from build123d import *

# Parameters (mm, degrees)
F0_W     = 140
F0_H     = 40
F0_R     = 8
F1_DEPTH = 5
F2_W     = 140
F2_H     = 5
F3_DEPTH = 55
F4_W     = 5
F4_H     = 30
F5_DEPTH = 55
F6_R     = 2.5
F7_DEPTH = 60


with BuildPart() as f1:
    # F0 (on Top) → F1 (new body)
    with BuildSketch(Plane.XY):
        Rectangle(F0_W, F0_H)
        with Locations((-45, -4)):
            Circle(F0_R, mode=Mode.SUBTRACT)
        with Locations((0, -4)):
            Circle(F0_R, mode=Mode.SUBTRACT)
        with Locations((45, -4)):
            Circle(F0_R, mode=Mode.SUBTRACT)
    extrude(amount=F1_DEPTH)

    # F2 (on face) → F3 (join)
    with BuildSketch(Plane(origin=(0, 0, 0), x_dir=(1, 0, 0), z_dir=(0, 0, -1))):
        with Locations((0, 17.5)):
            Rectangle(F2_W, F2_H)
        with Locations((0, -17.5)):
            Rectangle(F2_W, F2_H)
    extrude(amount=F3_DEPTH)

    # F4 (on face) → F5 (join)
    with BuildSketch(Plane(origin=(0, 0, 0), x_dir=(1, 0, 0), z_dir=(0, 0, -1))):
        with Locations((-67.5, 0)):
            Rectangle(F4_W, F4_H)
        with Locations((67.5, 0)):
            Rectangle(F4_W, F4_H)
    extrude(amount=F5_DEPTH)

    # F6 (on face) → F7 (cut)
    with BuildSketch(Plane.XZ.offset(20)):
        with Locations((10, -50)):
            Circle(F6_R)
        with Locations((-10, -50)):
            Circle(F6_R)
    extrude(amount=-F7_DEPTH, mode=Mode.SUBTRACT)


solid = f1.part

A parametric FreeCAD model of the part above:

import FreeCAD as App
import Part
import Sketcher

V = App.Vector
Q = App.Units.Quantity

doc = App.newDocument("Part")
body = doc.addObject("PartDesign::Body", "Body")

# Sketch on XY plane
sketch1 = body.newObject("Sketcher::SketchObject", "Sketch")
sketch1.AttachmentSupport = (doc.getObject("XY_Plane"), [""])
sketch1.MapMode = "FlatFace"
sketch1.addGeometry([
    Part.LineSegment(V(-70, 20, 0), V(-70, -20, 0)),  # 0
    Part.LineSegment(V(-70, -20, 0), V(70, -20, 0)),  # 1
    Part.LineSegment(V(70, -20, 0), V(70, 20, 0)),  # 2
    Part.LineSegment(V(70, 20, 0), V(-70, 20, 0)),  # 3
    Part.Circle(V(-45, -4, 0), V(0, 0, 1), 8),  # 4
    Part.Circle(V(0, -4, 0), V(0, 0, 1), 8),  # 5
    Part.Circle(V(45, -4, 0), V(0, 0, 1), 8),  # 6
], False)
sketch1.addConstraint([
    Sketcher.Constraint("Coincident", 0, 2, 1, 1),
    Sketcher.Constraint("Coincident", 1, 2, 2, 1),
    Sketcher.Constraint("Coincident", 2, 2, 3, 1),
    Sketcher.Constraint("Coincident", 3, 2, 0, 1),
    Sketcher.Constraint("Vertical", 0),
    Sketcher.Constraint("Horizontal", 1),
    Sketcher.Constraint("Vertical", 2),
    Sketcher.Constraint("Horizontal", 3),
    Sketcher.Constraint("Equal", 4, 5),
    Sketcher.Constraint("Equal", 5, 6),
    Sketcher.Constraint("Symmetric", 0, 2, 2, 2, -1, 1),
    Sketcher.Constraint("Symmetric", 4, 3, 6, 3, -2),
    Sketcher.Constraint("PointOnObject", 5, 3, -2),
    Sketcher.Constraint("Horizontal", 4, 3, 5, 3),
    Sketcher.Constraint("Diameter", 4, Q("16 mm")),
    Sketcher.Constraint("DistanceX", 1, 1, 1, 2, Q("140 mm")),
    Sketcher.Constraint("DistanceY", 0, 2, 0, 1, Q("40 mm")),
    Sketcher.Constraint("DistanceX", 4, 3, -1, 1, Q("45 mm")),
    Sketcher.Constraint("DistanceY", 4, 3, -1, 1, Q("4 mm")),
])
pad1 = body.newObject("PartDesign::Pad", "Pad")
pad1.Profile = sketch1
pad1.Length = 5

# Sketch on XY plane
sketch2 = body.newObject("Sketcher::SketchObject", "Sketch001")
sketch2.AttachmentSupport = (doc.getObject("XY_Plane"), [""])
sketch2.MapMode = "FlatFace"
sketch2.addGeometry([
    Part.LineSegment(V(-70, -20, 0), V(-70, -15, 0)),  # 0
    Part.LineSegment(V(-70, -15, 0), V(70, -15, 0)),  # 1
    Part.LineSegment(V(70, -15, 0), V(70, -20, 0)),  # 2
    Part.LineSegment(V(70, -20, 0), V(-70, -20, 0)),  # 3
    Part.LineSegment(V(-70, 15, 0), V(-70, 20, 0)),  # 4
    Part.LineSegment(V(-70, 20, 0), V(70, 20, 0)),  # 5
    Part.LineSegment(V(70, 20, 0), V(70, 15, 0)),  # 6
    Part.LineSegment(V(70, 15, 0), V(-70, 15, 0)),  # 7
], False)
sketch2.addConstraint([
    Sketcher.Constraint("Coincident", 0, 2, 1, 1),
    Sketcher.Constraint("Coincident", 1, 2, 2, 1),
    Sketcher.Constraint("Coincident", 2, 2, 3, 1),
    Sketcher.Constraint("Coincident", 3, 2, 0, 1),
    Sketcher.Constraint("Coincident", 4, 2, 5, 1),
    Sketcher.Constraint("Coincident", 5, 2, 6, 1),
    Sketcher.Constraint("Coincident", 6, 2, 7, 1),
    Sketcher.Constraint("Coincident", 7, 2, 4, 1),
    Sketcher.Constraint("Vertical", 0),
    Sketcher.Constraint("Horizontal", 1),
    Sketcher.Constraint("Vertical", 2),
    Sketcher.Constraint("Horizontal", 3),
    Sketcher.Constraint("Vertical", 4),
    Sketcher.Constraint("Horizontal", 5),
    Sketcher.Constraint("Vertical", 6),
    Sketcher.Constraint("Horizontal", 7),
    Sketcher.Constraint("Symmetric", 2, 2, 4, 2, -1, 1),
    Sketcher.Constraint("Symmetric", 0, 2, 6, 2, -1, 1),
    Sketcher.Constraint("Vertical", 3, 2, 4, 2),
    Sketcher.Constraint("DistanceX", 1, 1, 1, 2, Q("140 mm")),
    Sketcher.Constraint("DistanceY", 0, 1, 0, 2, Q("5 mm")),
    Sketcher.Constraint("DistanceY", 0, 2, -1, 1, Q("15 mm")),
])
pad2 = body.newObject("PartDesign::Pad", "Pad001")
pad2.Profile = sketch2
pad2.Length = 55
pad2.Reversed = True

# Sketch on XY plane
sketch3 = body.newObject("Sketcher::SketchObject", "Sketch002")
sketch3.AttachmentSupport = (doc.getObject("XY_Plane"), [""])
sketch3.MapMode = "FlatFace"
sketch3.addGeometry([
    Part.LineSegment(V(-70, -15, 0), V(-70, 15, 0)),  # 0
    Part.LineSegment(V(-70, 15, 0), V(-65, 15, 0)),  # 1
    Part.LineSegment(V(-65, 15, 0), V(-65, -15, 0)),  # 2
    Part.LineSegment(V(-65, -15, 0), V(-70, -15, 0)),  # 3
    Part.LineSegment(V(65, -15, 0), V(65, 15, 0)),  # 4
    Part.LineSegment(V(65, 15, 0), V(70, 15, 0)),  # 5
    Part.LineSegment(V(70, 15, 0), V(70, -15, 0)),  # 6
    Part.LineSegment(V(70, -15, 0), V(65, -15, 0)),  # 7
], False)
sketch3.addConstraint([
    Sketcher.Constraint("Coincident", 0, 2, 1, 1),
    Sketcher.Constraint("Coincident", 1, 2, 2, 1),
    Sketcher.Constraint("Coincident", 2, 2, 3, 1),
    Sketcher.Constraint("Coincident", 3, 2, 0, 1),
    Sketcher.Constraint("Coincident", 4, 2, 5, 1),
    Sketcher.Constraint("Coincident", 5, 2, 6, 1),
    Sketcher.Constraint("Coincident", 6, 2, 7, 1),
    Sketcher.Constraint("Coincident", 7, 2, 4, 1),
    Sketcher.Constraint("Vertical", 0),
    Sketcher.Constraint("Horizontal", 1),
    Sketcher.Constraint("Vertical", 2),
    Sketcher.Constraint("Horizontal", 3),
    Sketcher.Constraint("Vertical", 4),
    Sketcher.Constraint("Horizontal", 5),
    Sketcher.Constraint("Vertical", 6),
    Sketcher.Constraint("Horizontal", 7),
    Sketcher.Constraint("Symmetric", 2, 2, 4, 2, -1, 1),
    Sketcher.Constraint("Symmetric", 0, 2, 6, 2, -1, 1),
    Sketcher.Constraint("Horizontal", 1, 2, 4, 2),
    Sketcher.Constraint("DistanceX", 1, 1, 1, 2, Q("5 mm")),
    Sketcher.Constraint("DistanceY", 0, 1, 0, 2, Q("30 mm")),
    Sketcher.Constraint("DistanceX", 0, 2, -1, 1, Q("70 mm")),
])
pad3 = body.newObject("PartDesign::Pad", "Pad002")
pad3.Profile = sketch3
pad3.Length = 55
pad3.Reversed = True

# Sketch on XZ plane
sketch4 = body.newObject("Sketcher::SketchObject", "Sketch003")
sketch4.AttachmentSupport = (doc.getObject("XZ_Plane"), [""])
sketch4.MapMode = "FlatFace"
sketch4.AttachmentOffset = App.Placement(V(0, 0, 20), App.Rotation())
sketch4.addGeometry([
    Part.Circle(V(10, -50, 0), V(0, 0, 1), 2.5),
    Part.Circle(V(-10, -50, 0), V(0, 0, 1), 2.5),
], False)
sketch4.addConstraint([
    Sketcher.Constraint("Equal", 0, 1),
    Sketcher.Constraint("Symmetric", 0, 3, 1, 3, -2),
    Sketcher.Constraint("Diameter", 0, Q("5 mm")),
    Sketcher.Constraint("DistanceX", -1, 1, 0, 3, Q("10 mm")),
    Sketcher.Constraint("DistanceY", 0, 3, -1, 1, Q("50 mm")),
])
pocket1 = body.newObject("PartDesign::Pocket", "Pocket")
pocket1.Profile = sketch4
pocket1.Length = 60

doc.recompute()
